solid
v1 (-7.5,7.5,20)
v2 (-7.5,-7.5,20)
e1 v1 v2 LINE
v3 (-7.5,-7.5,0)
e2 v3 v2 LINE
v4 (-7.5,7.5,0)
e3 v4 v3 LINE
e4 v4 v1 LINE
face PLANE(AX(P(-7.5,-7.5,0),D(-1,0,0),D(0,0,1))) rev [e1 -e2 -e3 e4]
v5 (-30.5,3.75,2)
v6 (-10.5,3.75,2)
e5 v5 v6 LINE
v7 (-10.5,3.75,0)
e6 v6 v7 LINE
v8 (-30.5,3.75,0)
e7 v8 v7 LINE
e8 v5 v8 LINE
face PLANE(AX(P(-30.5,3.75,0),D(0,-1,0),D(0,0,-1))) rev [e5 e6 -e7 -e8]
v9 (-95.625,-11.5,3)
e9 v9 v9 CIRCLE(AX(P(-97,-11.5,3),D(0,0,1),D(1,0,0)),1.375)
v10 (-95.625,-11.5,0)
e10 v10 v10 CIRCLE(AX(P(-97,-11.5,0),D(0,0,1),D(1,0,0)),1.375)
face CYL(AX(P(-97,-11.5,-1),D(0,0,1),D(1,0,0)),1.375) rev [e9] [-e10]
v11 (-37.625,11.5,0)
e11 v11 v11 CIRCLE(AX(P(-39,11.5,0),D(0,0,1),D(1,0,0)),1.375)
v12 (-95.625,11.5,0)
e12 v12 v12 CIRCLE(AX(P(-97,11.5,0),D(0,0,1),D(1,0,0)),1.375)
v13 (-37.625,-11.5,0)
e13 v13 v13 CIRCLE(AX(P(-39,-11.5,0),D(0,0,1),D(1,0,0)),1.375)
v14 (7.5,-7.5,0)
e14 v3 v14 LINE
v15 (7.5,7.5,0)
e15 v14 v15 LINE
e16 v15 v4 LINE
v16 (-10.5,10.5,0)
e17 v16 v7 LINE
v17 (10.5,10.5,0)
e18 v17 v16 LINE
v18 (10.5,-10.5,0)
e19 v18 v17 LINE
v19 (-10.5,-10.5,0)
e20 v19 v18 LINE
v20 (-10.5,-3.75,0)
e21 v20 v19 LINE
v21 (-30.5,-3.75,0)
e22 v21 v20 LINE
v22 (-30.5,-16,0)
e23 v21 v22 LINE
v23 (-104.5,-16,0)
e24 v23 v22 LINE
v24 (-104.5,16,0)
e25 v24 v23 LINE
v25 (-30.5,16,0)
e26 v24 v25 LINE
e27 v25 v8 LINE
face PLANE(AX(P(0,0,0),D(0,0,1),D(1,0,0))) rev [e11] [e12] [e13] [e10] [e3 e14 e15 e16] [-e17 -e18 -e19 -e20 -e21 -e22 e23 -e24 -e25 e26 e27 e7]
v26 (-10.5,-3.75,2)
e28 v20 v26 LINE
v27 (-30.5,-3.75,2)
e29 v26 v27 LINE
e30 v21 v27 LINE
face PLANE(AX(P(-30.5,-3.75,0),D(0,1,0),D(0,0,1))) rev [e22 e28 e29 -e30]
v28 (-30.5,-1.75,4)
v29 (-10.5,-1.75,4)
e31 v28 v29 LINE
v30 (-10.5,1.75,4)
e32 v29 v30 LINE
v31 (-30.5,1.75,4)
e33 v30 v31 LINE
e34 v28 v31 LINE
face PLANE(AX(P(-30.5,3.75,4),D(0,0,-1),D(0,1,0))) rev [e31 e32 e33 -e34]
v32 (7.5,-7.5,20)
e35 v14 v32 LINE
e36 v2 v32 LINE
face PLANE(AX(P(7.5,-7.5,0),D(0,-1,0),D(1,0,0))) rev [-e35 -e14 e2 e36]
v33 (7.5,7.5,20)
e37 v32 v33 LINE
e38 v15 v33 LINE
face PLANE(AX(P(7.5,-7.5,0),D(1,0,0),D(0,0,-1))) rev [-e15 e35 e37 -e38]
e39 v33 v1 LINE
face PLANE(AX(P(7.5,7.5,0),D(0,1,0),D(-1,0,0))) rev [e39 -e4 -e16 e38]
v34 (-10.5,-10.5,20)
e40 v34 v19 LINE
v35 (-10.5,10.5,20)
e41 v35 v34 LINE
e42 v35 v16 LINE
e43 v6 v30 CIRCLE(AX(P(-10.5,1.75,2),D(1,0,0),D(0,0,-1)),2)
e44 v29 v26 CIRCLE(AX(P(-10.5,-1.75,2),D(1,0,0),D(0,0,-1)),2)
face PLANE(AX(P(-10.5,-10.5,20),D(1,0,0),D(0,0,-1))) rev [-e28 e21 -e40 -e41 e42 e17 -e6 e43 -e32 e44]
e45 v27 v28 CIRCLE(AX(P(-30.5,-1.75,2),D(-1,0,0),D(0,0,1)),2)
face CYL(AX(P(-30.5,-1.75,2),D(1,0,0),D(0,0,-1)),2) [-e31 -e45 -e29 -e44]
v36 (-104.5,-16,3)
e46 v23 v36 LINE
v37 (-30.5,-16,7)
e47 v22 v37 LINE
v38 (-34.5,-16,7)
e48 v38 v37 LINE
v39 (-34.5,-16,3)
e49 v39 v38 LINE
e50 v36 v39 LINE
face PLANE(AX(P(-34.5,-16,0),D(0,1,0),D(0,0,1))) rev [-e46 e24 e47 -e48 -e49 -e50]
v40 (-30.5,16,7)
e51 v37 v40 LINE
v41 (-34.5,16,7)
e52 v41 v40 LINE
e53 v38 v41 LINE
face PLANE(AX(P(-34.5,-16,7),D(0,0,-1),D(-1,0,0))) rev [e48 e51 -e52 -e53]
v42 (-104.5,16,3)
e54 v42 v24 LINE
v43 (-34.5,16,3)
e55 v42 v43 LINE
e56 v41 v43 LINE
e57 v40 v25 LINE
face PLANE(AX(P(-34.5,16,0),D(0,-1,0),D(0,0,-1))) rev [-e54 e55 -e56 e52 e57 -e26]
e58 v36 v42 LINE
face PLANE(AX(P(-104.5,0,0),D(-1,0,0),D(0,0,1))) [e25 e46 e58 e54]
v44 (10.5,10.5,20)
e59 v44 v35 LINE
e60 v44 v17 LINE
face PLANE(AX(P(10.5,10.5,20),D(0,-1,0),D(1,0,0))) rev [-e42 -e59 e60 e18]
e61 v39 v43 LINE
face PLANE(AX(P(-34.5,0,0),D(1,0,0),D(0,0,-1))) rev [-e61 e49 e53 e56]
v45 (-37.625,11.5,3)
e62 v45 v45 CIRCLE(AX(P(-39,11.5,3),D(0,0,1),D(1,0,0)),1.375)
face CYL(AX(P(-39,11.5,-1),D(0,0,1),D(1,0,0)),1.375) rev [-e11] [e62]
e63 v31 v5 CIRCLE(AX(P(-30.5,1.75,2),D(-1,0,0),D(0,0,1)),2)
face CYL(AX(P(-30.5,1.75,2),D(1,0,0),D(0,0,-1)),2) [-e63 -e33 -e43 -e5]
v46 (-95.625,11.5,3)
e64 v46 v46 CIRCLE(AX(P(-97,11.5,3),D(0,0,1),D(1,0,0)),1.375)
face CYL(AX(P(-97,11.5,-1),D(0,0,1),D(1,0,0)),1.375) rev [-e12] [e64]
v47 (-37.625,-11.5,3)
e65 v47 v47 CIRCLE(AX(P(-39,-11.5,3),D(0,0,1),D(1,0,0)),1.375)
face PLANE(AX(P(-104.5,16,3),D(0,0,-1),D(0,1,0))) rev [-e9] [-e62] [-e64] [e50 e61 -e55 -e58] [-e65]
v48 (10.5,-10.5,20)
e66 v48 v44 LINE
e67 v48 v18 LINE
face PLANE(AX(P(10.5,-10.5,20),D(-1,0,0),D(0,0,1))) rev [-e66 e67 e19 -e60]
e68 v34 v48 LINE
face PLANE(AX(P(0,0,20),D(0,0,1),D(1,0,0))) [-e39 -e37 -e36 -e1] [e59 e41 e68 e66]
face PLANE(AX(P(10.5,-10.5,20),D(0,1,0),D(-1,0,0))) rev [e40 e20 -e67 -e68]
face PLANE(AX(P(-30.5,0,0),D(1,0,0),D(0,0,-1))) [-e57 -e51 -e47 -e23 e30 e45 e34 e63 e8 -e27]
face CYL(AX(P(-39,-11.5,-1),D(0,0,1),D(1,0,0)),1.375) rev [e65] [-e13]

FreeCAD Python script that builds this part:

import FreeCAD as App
import Part
import Sketcher

V = App.Vector


def edges_at(feature, points):
    """Names of the edges that pass closest to the given points."""
    edges = feature.Shape.Edges
    near = lambda p: min(range(len(edges)), key=lambda i: edges[i].distToShape(Part.Vertex(*p))[0])
    return sorted({f"Edge{near(p) + 1}" for p in points})


def add_polygon(sketch, points):
    """Adds a closed chain of lines whose ends are joined by coincident constraints."""
    first, n = sketch.GeometryCount, len(points)
    for a, b in zip(points, points[1:] + points[:1]):
        sketch.addGeometry(Part.LineSegment(App.Vector(*a, 0), App.Vector(*b, 0)), False)
    for i in range(n):
        sketch.addConstraint(Sketcher.Constraint("Coincident", first + i, 2, first + (i + 1) % n, 1))

doc = App.newDocument("Part")
body = doc.addObject("PartDesign::Body", "Body")

sketch1 = doc.addObject("Sketcher::SketchObject", "Sketch")
body.addObject(sketch1)
sketch1.AttachmentSupport = (doc.XY_Plane, [""])
sketch1.MapMode = "FlatFace"
add_polygon(sketch1, [(-10.5, 10.5), (-10.5, -10.5), (10.5, -10.5), (10.5, 10.5)])
sketch1.addConstraint([
    Sketcher.Constraint("Vertical", 0),
    Sketcher.Constraint("Horizontal", 1),
    Sketcher.Constraint("Vertical", 2),
    Sketcher.Constraint("Horizontal", 3),
    Sketcher.Constraint("Symmetric", 0, 2, 2, 2, -1, 1),
    Sketcher.Constraint("Equal", 3, 0),
    Sketcher.Constraint("DistanceX", 1, 1, 1, 2, 21.0),
])
pad1 = doc.addObject("PartDesign::Pad", "Pad")
body.addObject(pad1)
pad1.Profile = sketch1
pad1.Length = 20

sketch2 = doc.addObject("Sketcher::SketchObject", "Sketch001")
body.addObject(sketch2)
sketch2.AttachmentSupport = (doc.XY_Plane, [""])
sketch2.MapMode = "FlatFace"
sketch2.AttachmentOffset = App.Placement(V(0, 0, 20), App.Rotation())
add_polygon(sketch2, [(-7.5, 7.5), (-7.5, -7.5), (7.5, -7.5), (7.5, 7.5)])
sketch2.addConstraint([
    Sketcher.Constraint("Vertical", 0),
    Sketcher.Constraint("Horizontal", 1),
    Sketcher.Constraint("Vertical", 2),
    Sketcher.Constraint("Horizontal", 3),
    Sketcher.Constraint("Symmetric", 0, 2, 2, 2, -1, 1),
    Sketcher.Constraint("Equal", 3, 0),
    Sketcher.Constraint("DistanceX", 1, 1, 1, 2, 15.0),
])
pocket1 = doc.addObject("PartDesign::Pocket", "Pocket")
body.addObject(pocket1)
pocket1.Profile = sketch2
pocket1.Length = 20

sketch3 = doc.addObject("Sketcher::SketchObject", "Sketch002")
body.addObject(sketch3)
sketch3.AttachmentSupport = (doc.YZ_Plane, [""])
sketch3.MapMode = "FlatFace"
sketch3.AttachmentOffset = App.Placement(V(0, 0, -10.5), App.Rotation())
add_polygon(sketch3, [(3.75, 0), (-3.75, 0), (-3.75, 4), (3.75, 4)])
sketch3.addConstraint([
    Sketcher.Constraint("Horizontal", 0),
    Sketcher.Constraint("Vertical", 1),
    Sketcher.Constraint("Horizontal", 2),
    Sketcher.Constraint("Vertical", 3),
    Sketcher.Constraint("Symmetric", 0, 2, 3, 2, -1, 1),
    Sketcher.Constraint("DistanceY", 1, 1, 1, 2, 4.0),
    Sketcher.Constraint("DistanceX", 0, 2, 0, 1, 7.5),
])
pad2 = doc.addObject("PartDesign::Pad", "Pad001")
body.addObject(pad2)
pad2.Profile = sketch3
pad2.Length = 20
pad2.Reversed = True
doc.recompute()

fillet = doc.addObject("PartDesign::Fillet", "Fillet")
body.addObject(fillet)
fillet.Base = (pad2, edges_at(pad2, [(-20.5, -3.75, 4), (-20.5, 3.75, 4)]))
fillet.Radius = 2

sketch4 = doc.addObject("Sketcher::SketchObject", "Sketch003")
body.addObject(sketch4)
sketch4.AttachmentSupport = (doc.YZ_Plane, [""])
sketch4.MapMode = "FlatFace"
sketch4.AttachmentOffset = App.Placement(V(0, 0, -30.5), App.Rotation())
add_polygon(sketch4, [(16, 0), (-16, 0), (-16, 7), (16, 7)])
sketch4.addConstraint([
    Sketcher.Constraint("Horizontal", 0),
    Sketcher.Constraint("Vertical", 1),
    Sketcher.Constraint("Horizontal", 2),
    Sketcher.Constraint("Vertical", 3),
    Sketcher.Constraint("Symmetric", 0, 2, 3, 2, -1, 1),
    Sketcher.Constraint("DistanceX", 0, 2, 0, 1, 32.0),
    Sketcher.Constraint("DistanceY", 1, 1, 1, 2, 7.0),
])
pad3 = doc.addObject("PartDesign::Pad", "Pad002")
body.addObject(pad3)
pad3.Profile = sketch4
pad3.Length = 4
pad3.Reversed = True

sketch5 = doc.addObject("Sketcher::SketchObject", "Sketch004")
body.addObject(sketch5)
sketch5.AttachmentSupport = (doc.YZ_Plane, [""])
sketch5.MapMode = "FlatFace"
sketch5.AttachmentOffset = App.Placement(V(0, 0, -34.5), App.Rotation())
add_polygon(sketch5, [(16, 0), (-16, 0), (-16, 3), (16, 3)])
sketch5.addConstraint([
    Sketcher.Constraint("Horizontal", 0),
    Sketcher.Constraint("Vertical", 1),
    Sketcher.Constraint("Horizontal", 2),
    Sketcher.Constraint("Vertical", 3),
    Sketcher.Constraint("Symmetric", 0, 2, 3, 2, -1, 1),
    Sketcher.Constraint("DistanceX", 0, 2, 0, 1, 32.0),
    Sketcher.Constraint("DistanceY", 1, 1, 1, 2, 3.0),
])
pad4 = doc.addObject("PartDesign::Pad", "Pad003")
body.addObject(pad4)
pad4.Profile = sketch5
pad4.Length = 70
pad4.Reversed = True

sketch6 = doc.addObject("Sketcher::SketchObject", "Sketch005")
body.addObject(sketch6)
sketch6.AttachmentSupport = (doc.XY_Plane, [""])
sketch6.MapMode = "FlatFace"
sketch6.AttachmentOffset = App.Placement(V(0, 0, 3), App.Rotation())
sketch6.addGeometry([
    Part.Circle(V(-39, -11.5, 0), V(0, 0, 1), 1.375),
    Part.Circle(V(-39, 11.5, 0), V(0, 0, 1), 1.375),
    Part.Circle(V(-97, -11.5, 0), V(0, 0, 1), 1.375),
    Part.Circle(V(-97, 11.5, 0), V(0, 0, 1), 1.375),
], False)
sketch6.addConstraint([
    Sketcher.Constraint("Equal", 0, 1),
    Sketcher.Constraint("Equal", 1, 2),
    Sketcher.Constraint("Equal", 2, 3),
    Sketcher.Constraint("Symmetric", 0, 3, 1, 3, -1),
    Sketcher.Constraint("Symmetric", 2, 3, 3, 3, -1),
    Sketcher.Constraint("Horizontal", 0, 3, 2, 3),
    Sketcher.Constraint("Diameter", 0, 2.75),
    Sketcher.Constraint("DistanceX", 0, 3, -1, 1, 39.0),
    Sketcher.Constraint("DistanceX", 2, 3, -1, 1, 97.0),
    Sketcher.Constraint("DistanceY", 0, 3, 1, 3, 23.0),
])
pocket2 = doc.addObject("PartDesign::Pocket", "Pocket001")
body.addObject(pocket2)
pocket2.Profile = sketch6
pocket2.Length = 4

doc.recompute()
